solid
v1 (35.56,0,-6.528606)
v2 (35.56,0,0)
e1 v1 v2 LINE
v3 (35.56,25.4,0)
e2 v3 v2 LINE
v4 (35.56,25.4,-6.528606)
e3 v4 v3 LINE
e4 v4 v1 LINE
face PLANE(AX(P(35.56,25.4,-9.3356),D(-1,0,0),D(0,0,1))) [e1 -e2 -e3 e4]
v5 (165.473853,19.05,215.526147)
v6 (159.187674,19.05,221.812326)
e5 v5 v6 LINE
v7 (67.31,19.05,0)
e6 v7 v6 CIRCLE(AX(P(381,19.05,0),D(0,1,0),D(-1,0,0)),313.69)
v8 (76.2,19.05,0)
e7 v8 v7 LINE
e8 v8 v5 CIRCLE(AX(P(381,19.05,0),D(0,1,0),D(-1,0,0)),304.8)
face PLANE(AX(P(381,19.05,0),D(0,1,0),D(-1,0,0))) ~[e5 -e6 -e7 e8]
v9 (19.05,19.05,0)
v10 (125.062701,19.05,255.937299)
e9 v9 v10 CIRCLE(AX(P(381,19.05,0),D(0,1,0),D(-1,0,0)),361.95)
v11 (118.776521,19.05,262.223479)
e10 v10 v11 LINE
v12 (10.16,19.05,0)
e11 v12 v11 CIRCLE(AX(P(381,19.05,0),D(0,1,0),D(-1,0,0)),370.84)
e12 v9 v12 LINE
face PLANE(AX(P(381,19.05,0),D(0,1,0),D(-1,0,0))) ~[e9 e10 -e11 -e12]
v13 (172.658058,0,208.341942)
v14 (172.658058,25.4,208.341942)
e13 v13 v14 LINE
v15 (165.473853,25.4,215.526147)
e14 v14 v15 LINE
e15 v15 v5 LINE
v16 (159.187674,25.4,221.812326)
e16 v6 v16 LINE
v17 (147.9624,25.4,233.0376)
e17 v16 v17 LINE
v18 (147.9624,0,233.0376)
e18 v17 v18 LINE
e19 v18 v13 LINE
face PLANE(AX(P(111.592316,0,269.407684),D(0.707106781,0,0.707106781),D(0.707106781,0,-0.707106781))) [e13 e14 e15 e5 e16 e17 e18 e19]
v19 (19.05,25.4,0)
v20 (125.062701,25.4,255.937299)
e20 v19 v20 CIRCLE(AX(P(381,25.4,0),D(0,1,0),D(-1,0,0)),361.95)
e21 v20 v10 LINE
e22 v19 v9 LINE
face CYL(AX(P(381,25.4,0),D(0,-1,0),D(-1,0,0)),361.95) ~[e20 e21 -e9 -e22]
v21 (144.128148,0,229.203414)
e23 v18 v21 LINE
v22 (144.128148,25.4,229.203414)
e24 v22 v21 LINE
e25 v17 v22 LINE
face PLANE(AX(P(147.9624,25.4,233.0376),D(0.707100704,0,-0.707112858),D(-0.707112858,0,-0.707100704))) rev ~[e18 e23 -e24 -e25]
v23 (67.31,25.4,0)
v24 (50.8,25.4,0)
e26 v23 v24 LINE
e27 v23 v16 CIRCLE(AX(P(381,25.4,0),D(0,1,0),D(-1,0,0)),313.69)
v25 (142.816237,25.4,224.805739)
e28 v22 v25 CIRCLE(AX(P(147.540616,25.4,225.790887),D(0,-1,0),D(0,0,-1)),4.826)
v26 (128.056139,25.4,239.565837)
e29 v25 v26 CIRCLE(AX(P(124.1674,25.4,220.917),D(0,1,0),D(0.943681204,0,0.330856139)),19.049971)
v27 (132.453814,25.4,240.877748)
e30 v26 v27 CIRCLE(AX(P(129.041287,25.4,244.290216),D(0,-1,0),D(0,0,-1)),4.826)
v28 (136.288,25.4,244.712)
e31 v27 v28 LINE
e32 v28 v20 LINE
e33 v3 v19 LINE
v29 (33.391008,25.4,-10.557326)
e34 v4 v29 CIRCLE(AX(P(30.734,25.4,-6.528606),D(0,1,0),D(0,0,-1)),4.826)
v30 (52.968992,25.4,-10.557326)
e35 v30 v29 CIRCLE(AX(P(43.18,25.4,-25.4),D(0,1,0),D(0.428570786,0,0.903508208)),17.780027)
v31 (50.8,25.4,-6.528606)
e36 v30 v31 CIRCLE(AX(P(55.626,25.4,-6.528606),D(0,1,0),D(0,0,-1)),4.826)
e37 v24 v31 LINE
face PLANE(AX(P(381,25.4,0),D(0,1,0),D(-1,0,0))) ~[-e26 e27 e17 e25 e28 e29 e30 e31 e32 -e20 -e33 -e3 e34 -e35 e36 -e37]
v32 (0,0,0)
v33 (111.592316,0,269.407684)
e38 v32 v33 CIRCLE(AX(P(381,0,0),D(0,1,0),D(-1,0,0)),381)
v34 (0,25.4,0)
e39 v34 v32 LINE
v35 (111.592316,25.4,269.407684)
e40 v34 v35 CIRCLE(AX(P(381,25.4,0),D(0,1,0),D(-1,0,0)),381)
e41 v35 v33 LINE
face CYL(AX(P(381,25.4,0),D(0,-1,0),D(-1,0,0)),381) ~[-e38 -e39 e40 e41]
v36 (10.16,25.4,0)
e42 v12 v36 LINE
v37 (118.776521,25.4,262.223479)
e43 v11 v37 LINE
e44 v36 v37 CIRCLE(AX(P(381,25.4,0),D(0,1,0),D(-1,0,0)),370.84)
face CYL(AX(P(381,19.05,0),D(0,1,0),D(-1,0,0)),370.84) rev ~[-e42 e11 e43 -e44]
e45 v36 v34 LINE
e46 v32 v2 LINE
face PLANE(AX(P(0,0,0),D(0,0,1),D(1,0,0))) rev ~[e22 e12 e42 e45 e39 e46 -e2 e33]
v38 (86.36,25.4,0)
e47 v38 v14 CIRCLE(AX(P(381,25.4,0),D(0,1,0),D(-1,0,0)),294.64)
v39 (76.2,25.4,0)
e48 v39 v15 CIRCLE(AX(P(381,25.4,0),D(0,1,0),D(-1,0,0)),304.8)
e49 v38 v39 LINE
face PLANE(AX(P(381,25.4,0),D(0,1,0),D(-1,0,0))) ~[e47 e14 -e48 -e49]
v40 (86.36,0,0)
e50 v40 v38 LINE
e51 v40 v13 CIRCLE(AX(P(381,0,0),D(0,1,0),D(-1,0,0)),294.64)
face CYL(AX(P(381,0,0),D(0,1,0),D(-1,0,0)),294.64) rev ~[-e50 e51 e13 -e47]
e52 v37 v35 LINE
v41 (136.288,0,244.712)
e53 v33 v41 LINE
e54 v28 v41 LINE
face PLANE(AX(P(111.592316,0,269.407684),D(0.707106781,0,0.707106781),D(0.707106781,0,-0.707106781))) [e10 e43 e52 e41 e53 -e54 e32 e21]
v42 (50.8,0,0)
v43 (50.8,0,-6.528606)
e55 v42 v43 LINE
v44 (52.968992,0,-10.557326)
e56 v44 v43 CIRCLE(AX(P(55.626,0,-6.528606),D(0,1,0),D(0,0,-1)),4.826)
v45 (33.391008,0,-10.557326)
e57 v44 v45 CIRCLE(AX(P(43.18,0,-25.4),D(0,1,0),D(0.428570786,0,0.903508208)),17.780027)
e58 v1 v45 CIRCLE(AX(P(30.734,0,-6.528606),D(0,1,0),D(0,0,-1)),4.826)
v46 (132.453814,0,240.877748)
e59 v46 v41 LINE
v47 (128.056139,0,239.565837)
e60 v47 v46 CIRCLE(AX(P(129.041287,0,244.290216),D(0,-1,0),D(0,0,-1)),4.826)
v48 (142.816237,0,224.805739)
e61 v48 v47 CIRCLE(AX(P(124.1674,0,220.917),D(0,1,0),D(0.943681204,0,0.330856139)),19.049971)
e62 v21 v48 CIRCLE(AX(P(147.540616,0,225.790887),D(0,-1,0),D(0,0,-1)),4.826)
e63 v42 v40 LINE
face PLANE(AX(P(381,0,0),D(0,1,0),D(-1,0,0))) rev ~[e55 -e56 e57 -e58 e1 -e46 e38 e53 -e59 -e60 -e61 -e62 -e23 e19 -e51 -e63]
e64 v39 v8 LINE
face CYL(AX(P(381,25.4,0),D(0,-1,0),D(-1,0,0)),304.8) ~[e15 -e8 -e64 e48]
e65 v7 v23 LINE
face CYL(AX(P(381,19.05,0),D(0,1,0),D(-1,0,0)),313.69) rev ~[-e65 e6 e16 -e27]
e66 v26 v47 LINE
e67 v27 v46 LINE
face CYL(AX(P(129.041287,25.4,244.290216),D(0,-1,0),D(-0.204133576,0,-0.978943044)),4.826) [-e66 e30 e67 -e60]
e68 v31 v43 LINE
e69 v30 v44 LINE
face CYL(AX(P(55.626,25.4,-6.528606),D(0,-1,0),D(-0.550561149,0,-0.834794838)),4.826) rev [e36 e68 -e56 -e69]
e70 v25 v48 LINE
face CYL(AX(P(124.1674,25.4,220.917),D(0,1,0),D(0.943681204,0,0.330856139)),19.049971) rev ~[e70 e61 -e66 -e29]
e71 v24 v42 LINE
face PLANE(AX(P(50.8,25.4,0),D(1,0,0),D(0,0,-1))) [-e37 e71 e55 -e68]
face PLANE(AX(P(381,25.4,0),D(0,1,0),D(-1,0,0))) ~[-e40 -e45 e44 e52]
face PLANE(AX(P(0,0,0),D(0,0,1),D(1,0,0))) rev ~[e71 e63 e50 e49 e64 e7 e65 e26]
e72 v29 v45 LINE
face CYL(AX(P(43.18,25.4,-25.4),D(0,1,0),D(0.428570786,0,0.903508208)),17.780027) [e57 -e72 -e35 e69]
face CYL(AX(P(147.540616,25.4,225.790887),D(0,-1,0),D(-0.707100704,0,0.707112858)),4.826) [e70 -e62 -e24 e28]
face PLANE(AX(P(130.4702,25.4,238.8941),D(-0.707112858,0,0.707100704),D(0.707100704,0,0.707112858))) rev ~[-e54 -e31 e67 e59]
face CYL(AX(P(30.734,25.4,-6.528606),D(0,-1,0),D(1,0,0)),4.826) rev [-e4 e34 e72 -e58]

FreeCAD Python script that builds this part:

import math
import FreeCAD as App
import Part
import Sketcher
Q = App.Units.Quantity


def edges_at(feature, points):
    """Names of the edges that pass closest to the given points."""
    edges = feature.Shape.Edges
    near = lambda p: min(range(len(edges)), key=lambda i: edges[i].distToShape(Part.Vertex(*p))[0])
    return sorted({f"Edge{near(p) + 1}" for p in points})

doc = App.newDocument("Part")
body = doc.addObject("PartDesign::Body", "Body")

# Sketch on XY plane
sketch1 = doc.addObject("Sketcher::SketchObject", "Sketch")
body.addObject(sketch1)
sketch1.AttachmentSupport = (doc.XY_Plane, [""])
sketch1.MapMode = "FlatFace"
sketch1.addGeometry([
    Part.LineSegment(App.Vector(0, 25.4, 0), App.Vector(0, 0, 0)),  # 0
    Part.LineSegment(App.Vector(0, 0, 0), App.Vector(86.36, 0, 0)),  # 1
    Part.LineSegment(App.Vector(86.36, 0, 0), App.Vector(86.36, 25.4, 0)),  # 2
    Part.LineSegment(App.Vector(86.36, 25.4, 0), App.Vector(76.2, 25.4, 0)),  # 3
    Part.LineSegment(App.Vector(76.2, 25.4, 0), App.Vector(76.2, 19.05, 0)),  # 4
    Part.LineSegment(App.Vector(76.2, 19.05, 0), App.Vector(67.31, 19.05, 0)),  # 5
    Part.LineSegment(App.Vector(67.31, 19.05, 0), App.Vector(67.31, 25.4, 0)),  # 6
    Part.LineSegment(App.Vector(67.31, 25.4, 0), App.Vector(19.05, 25.4, 0)),  # 7
    Part.LineSegment(App.Vector(19.05, 25.4, 0), App.Vector(19.05, 19.05, 0)),  # 8
    Part.LineSegment(App.Vector(19.05, 19.05, 0), App.Vector(10.16, 19.05, 0)),  # 9
    Part.LineSegment(App.Vector(10.16, 19.05, 0), App.Vector(10.16, 25.4, 0)),  # 10
    Part.LineSegment(App.Vector(10.16, 25.4, 0), App.Vector(0, 25.4, 0)),  # 11
], False)
sketch1.addGeometry(Part.LineSegment(App.Vector(381, 0, 0), App.Vector(381, 25.4, 0)), True)  # axis
sketch1.addConstraint([
    Sketcher.Constraint("Coincident", 0, 2, 1, 1),
    Sketcher.Constraint("Coincident", 1, 2, 2, 1),
    Sketcher.Constraint("Coincident", 2, 2, 3, 1),
    Sketcher.Constraint("Coincident", 3, 2, 4, 1),
    Sketcher.Constraint("Coincident", 4, 2, 5, 1),
    Sketcher.Constraint("Coincident", 5, 2, 6, 1),
    Sketcher.Constraint("Coincident", 6, 2, 7, 1),
    Sketcher.Constraint("Coincident", 7, 2, 8, 1),
    Sketcher.Constraint("Coincident", 8, 2, 9, 1),
    Sketcher.Constraint("Coincident", 9, 2, 10, 1),
    Sketcher.Constraint("Coincident", 10, 2, 11, 1),
    Sketcher.Constraint("Coincident", 11, 2, 0, 1),
    Sketcher.Constraint("Vertical", 0),
    Sketcher.Constraint("Horizontal", 1),
    Sketcher.Constraint("Vertical", 2),
    Sketcher.Constraint("Horizontal", 3),
    Sketcher.Constraint("Vertical", 4),
    Sketcher.Constraint("Horizontal", 5),
    Sketcher.Constraint("Vertical", 6),
    Sketcher.Constraint("Horizontal", 7),
    Sketcher.Constraint("Vertical", 8),
    Sketcher.Constraint("Horizontal", 9),
    Sketcher.Constraint("Vertical", 10),
    Sketcher.Constraint("Horizontal", 11),
    Sketcher.Constraint("Vertical", 12),
    Sketcher.Constraint("Coincident", 0, 2, -1, 1),
    Sketcher.Constraint("PointOnObject", 12, 1, -1),
    Sketcher.Constraint("Horizontal", 3, 2, 6, 2),
    Sketcher.Constraint("Horizontal", 5, 2, 8, 2),
    Sketcher.Constraint("Horizontal", 7, 2, 10, 2),
    Sketcher.Constraint("Horizontal", 11, 2, 12, 2),
    Sketcher.Constraint("Equal", 5, 9),
    Sketcher.Constraint("Equal", 3, 11),
    Sketcher.Constraint("DistanceY", 0, 2, 0, 1, Q("1 in")),
    Sketcher.Constraint("DistanceX", 1, 1, 1, 2, Q("3.4 in")),
    Sketcher.Constraint("DistanceX", 3, 2, 3, 1, Q("0.4 in")),
    Sketcher.Constraint("DistanceX", -1, 1, 12, 1, Q("15 in")),
    Sketcher.Constraint("DistanceY", -1, 1, 4, 2, Q("0.75 in")),
    Sketcher.Constraint("DistanceX", -1, 1, 5, 2, Q("2.65 in")),
])
revolution = doc.addObject("PartDesign::Revolution", "Revolution")
body.addObject(revolution)
revolution.Profile = sketch1
revolution.ReferenceAxis = (sketch1, ["Axis0"])
revolution.Angle = 45

# Sketch on XZ plane
sketch2 = doc.addObject("Sketcher::SketchObject", "Sketch001")
body.addObject(sketch2)
sketch2.AttachmentSupport = (doc.XZ_Plane, [""])
sketch2.MapMode = "FlatFace"
sketch2.AttachmentOffset = App.Placement(App.Vector(0, 0, -1 * 25.4), App.Rotation())
sketch2.addGeometry([
    Part.LineSegment(App.Vector(35.56, 0, 0), App.Vector(50.8, 0, 0)),
    Part.LineSegment(App.Vector(50.8, 0, 0), App.Vector(50.8, -9.3356, 0)),
    Part.ArcOfCircle(Part.Circle(App.Vector(43.18, -25.4, 0), App.Vector(0, 0, 1), 17.780027), math.radians(115.376893), math.radians(424.623107)),
    Part.LineSegment(App.Vector(35.56, -9.3356, 0), App.Vector(35.56, 0, 0)),
], False)
sketch2.addConstraint([
    Sketcher.Constraint("Coincident", 0, 2, 1, 1),
    Sketcher.Constraint("Coincident", 1, 2, 2, 2),
    Sketcher.Constraint("Coincident", 2, 1, 3, 1),
    Sketcher.Constraint("Coincident", 3, 2, 0, 1),
    Sketcher.Constraint("Horizontal", 0),
    Sketcher.Constraint("Vertical", 1),
    Sketcher.Constraint("Vertical", 3),
    Sketcher.Constraint("PointOnObject", 0, 2, -1),
    Sketcher.Constraint("Horizontal", 1, 2, 2, 1),
    Sketcher.Constraint("Radius", 2, Q("0.7 in")),
    Sketcher.Constraint("DistanceX", 0, 1, 0, 2, Q("0.6 in")),
    Sketcher.Constraint("DistanceY", 2, 3, -1, 1, Q("1 in")),
    Sketcher.Constraint("DistanceX", -1, 1, 2, 3, Q("1.7 in")),
])
pad1 = doc.addObject("PartDesign::Pad", "Pad")
body.addObject(pad1)
pad1.Profile = sketch2
pad1.Length = Q("1 in")

# Sketch on XZ plane
sketch3 = doc.addObject("Sketcher::SketchObject", "Sketch002")
body.addObject(sketch3)
sketch3.AttachmentSupport = (doc.XZ_Plane, [""])
sketch3.MapMode = "FlatFace"
sketch3.AttachmentOffset = App.Placement(App.Vector(0, 0, -1 * 25.4), App.Rotation())
sketch3.addGeometry([
    Part.LineSegment(App.Vector(136.288, 244.712, 0), App.Vector(147.9624, 233.0376, 0)),
    Part.LineSegment(App.Vector(147.9624, 233.0376, 0), App.Vector(142.1445, 227.2198, 0)),
    Part.ArcOfCircle(Part.Circle(App.Vector(124.1674, 220.917, 0), App.Vector(0, 0, 1), 19.049971), math.radians(70.679252), math.radians(379.320748)),
    Part.LineSegment(App.Vector(130.4702, 238.8941, 0), App.Vector(136.288, 244.712, 0)),
], False)
sketch3.addConstraint([
    Sketcher.Constraint("Coincident", 0, 2, 1, 1),
    Sketcher.Constraint("Coincident", 1, 2, 2, 2),
    Sketcher.Constraint("Coincident", 2, 1, 3, 1),
    Sketcher.Constraint("Coincident", 3, 2, 0, 1),
    Sketcher.Constraint("Perpendicular", 0, 1),
    Sketcher.Constraint("Parallel", 1, 3),
    Sketcher.Constraint("Equal", 1, 3),
    Sketcher.Constraint("Radius", 2, Q("0.75 in")),
    Sketcher.Constraint("Distance", 0, Q("0.65 in")),
    Sketcher.Constraint("Angle", 0, Q("-45 deg")),
    Sketcher.Constraint("DistanceX", -1, 1, 0, 2, Q("5.8253 in")),
    Sketcher.Constraint("DistanceY", -1, 1, 0, 2, Q("9.1747 in")),
    Sketcher.Constraint("DistanceX", 2, 3, 0, 2, Q("0.9368 in")),
])
pocket1 = doc.addObject("PartDesign::Pocket", "Pocket")
body.addObject(pocket1)
pocket1.Profile = sketch3
pocket1.Type = "ThroughAll"
pocket1.Reversed = True
doc.recompute()

fillet = doc.addObject("PartDesign::Fillet", "Fillet")
body.addObject(fillet)
fillet.Base = (pocket1, edges_at(pocket1, [
    (50.8, 12.7, -9.336),
    (35.56, 12.7, -9.336),
    (142.144, 12.7, 227.22),
    (130.47, 12.7, 238.894),
]))
fillet.Radius = Q("0.19 in")

doc.recompute()
